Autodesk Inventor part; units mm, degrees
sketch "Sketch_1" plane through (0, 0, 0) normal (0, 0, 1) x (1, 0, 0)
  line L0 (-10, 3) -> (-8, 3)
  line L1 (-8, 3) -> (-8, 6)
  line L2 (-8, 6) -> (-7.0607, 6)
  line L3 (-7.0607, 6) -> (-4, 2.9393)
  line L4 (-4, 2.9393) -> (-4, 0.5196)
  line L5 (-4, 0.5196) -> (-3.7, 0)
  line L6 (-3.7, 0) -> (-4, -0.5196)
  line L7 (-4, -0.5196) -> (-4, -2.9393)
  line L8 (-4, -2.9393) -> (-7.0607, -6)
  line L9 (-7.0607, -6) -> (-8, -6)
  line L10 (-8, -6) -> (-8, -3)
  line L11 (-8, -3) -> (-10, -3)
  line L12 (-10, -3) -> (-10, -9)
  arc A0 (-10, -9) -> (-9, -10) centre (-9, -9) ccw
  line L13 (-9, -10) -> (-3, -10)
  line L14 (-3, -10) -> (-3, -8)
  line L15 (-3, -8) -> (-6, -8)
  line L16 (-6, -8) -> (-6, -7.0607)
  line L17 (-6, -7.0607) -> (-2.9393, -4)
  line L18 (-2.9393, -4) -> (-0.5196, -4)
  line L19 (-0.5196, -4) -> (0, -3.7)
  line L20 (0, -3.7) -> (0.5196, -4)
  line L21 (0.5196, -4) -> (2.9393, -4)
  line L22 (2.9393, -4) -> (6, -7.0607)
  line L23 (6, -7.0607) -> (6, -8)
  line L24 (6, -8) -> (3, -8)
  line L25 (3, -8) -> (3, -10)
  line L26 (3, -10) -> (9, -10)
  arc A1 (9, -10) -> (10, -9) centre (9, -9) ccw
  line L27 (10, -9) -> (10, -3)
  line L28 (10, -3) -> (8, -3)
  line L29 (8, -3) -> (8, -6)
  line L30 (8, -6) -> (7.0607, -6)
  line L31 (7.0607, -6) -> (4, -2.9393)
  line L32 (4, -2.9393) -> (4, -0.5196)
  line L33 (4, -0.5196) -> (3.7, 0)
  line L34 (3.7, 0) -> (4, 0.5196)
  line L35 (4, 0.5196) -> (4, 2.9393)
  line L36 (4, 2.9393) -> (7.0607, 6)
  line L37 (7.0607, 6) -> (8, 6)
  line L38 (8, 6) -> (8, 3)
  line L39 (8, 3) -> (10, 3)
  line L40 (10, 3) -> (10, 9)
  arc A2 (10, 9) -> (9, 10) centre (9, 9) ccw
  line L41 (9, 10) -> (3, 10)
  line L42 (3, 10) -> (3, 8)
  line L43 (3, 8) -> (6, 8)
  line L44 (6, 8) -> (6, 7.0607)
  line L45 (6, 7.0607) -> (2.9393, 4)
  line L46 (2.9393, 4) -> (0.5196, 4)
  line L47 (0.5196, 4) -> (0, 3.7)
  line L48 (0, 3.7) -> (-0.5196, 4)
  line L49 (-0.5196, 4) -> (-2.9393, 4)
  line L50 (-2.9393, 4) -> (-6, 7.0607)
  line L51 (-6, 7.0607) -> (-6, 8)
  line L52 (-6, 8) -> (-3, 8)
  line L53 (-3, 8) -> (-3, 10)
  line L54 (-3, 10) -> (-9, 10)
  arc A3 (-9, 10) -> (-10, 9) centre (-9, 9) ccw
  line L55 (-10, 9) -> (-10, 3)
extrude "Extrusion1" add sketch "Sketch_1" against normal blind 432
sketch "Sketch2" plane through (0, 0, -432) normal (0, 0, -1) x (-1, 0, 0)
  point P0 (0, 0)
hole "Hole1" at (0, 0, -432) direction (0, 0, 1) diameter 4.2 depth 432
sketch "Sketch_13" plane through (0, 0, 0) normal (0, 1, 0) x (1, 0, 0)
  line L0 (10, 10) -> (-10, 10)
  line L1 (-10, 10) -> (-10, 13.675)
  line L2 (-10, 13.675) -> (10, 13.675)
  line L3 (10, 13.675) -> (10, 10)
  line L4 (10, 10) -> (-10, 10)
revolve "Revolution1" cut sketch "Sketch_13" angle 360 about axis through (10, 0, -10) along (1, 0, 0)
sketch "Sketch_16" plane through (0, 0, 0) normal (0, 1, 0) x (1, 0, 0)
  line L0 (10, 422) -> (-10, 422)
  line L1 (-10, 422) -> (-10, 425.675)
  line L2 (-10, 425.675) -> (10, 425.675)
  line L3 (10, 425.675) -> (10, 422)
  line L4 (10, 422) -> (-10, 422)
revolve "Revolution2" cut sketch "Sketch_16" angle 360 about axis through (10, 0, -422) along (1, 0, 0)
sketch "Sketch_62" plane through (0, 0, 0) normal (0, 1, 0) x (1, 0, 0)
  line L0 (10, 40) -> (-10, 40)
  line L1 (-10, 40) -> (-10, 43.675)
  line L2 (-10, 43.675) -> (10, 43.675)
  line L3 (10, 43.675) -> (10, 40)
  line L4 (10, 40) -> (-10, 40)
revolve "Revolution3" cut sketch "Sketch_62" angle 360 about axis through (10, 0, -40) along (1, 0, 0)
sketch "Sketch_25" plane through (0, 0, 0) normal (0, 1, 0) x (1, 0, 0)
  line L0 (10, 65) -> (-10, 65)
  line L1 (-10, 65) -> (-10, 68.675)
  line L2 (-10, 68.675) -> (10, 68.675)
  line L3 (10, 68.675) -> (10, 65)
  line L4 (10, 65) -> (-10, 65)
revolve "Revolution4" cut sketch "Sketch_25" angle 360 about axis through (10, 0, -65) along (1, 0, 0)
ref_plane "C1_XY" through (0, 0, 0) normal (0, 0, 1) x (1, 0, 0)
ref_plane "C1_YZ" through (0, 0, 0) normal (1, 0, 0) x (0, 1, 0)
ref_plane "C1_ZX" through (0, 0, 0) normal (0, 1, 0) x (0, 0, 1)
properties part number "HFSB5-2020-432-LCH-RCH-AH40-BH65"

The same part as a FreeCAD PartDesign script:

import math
import FreeCAD as App
import Part
import Sketcher
from FreeCAD import Vector
Q = App.Units.Quantity

doc = App.newDocument("Part")
body = doc.addObject("PartDesign::Body", "Body")

sketch1 = doc.addObject("Sketcher::SketchObject", "Sketch")
body.addObject(sketch1)
sketch1.AttachmentSupport = (doc.XY_Plane, [""])
sketch1.MapMode = "FlatFace"
sketch1.addGeometry(Part.LineSegment(Vector(-10, 9, 0), Vector(-10, 3, 0)), False)
sketch1.addGeometry(Part.LineSegment(Vector(-10, 3, 0), Vector(-8, 3, 0)), False)
sketch1.addGeometry(Part.LineSegment(Vector(-8, 3, 0), Vector(-8, 6, 0)), False)
sketch1.addGeometry(Part.LineSegment(Vector(-8, 6, 0), Vector(-7.1, 6, 0)), False)
sketch1.addGeometry(Part.LineSegment(Vector(-7.1, 6, 0), Vector(-4, 2.9, 0)), False)
sketch1.addGeometry(Part.LineSegment(Vector(-4, 2.9, 0), Vector(-4, 0.5, 0)), False)
sketch1.addGeometry(Part.LineSegment(Vector(-4, 0.5, 0), Vector(-3.7, 0, 0)), False)
sketch1.addGeometry(Part.LineSegment(Vector(-3.7, 0, 0), Vector(-4, -0.5, 0)), False)
sketch1.addGeometry(Part.LineSegment(Vector(-4, -0.5, 0), Vector(-4, -2.9, 0)), False)
sketch1.addGeometry(Part.LineSegment(Vector(-4, -2.9, 0), Vector(-7.1, -6, 0)), False)
sketch1.addGeometry(Part.LineSegment(Vector(-7.1, -6, 0), Vector(-8, -6, 0)), False)
sketch1.addGeometry(Part.LineSegment(Vector(-8, -6, 0), Vector(-8, -3, 0)), False)
sketch1.addGeometry(Part.LineSegment(Vector(-8, -3, 0), Vector(-10, -3, 0)), False)
sketch1.addGeometry(Part.LineSegment(Vector(-10, -3, 0), Vector(-10, -9, 0)), False)
sketch1.addGeometry(Part.ArcOfCircle(Part.Circle(Vector(-9, -9, 0), Vector(0, 0, 1), 1), math.radians(180), math.radians(270)), False)
sketch1.addGeometry(Part.LineSegment(Vector(-9, -10, 0), Vector(-3, -10, 0)), False)
sketch1.addGeometry(Part.LineSegment(Vector(-3, -10, 0), Vector(-3, -8, 0)), False)
sketch1.addGeometry(Part.LineSegment(Vector(-3, -8, 0), Vector(-6, -8, 0)), False)
sketch1.addGeometry(Part.LineSegment(Vector(-6, -8, 0), Vector(-6, -7.1, 0)), False)
sketch1.addGeometry(Part.LineSegment(Vector(-6, -7.1, 0), Vector(-2.9, -4, 0)), False)
sketch1.addGeometry(Part.LineSegment(Vector(-2.9, -4, 0), Vector(-0.5, -4, 0)), False)
sketch1.addGeometry(Part.LineSegment(Vector(-0.5, -4, 0), Vector(0, -3.7, 0)), False)
sketch1.addGeometry(Part.LineSegment(Vector(0, -3.7, 0), Vector(0.5, -4, 0)), False)
sketch1.addGeometry(Part.LineSegment(Vector(0.5, -4, 0), Vector(2.9, -4, 0)), False)
sketch1.addGeometry(Part.LineSegment(Vector(2.9, -4, 0), Vector(6, -7.1, 0)), False)
sketch1.addGeometry(Part.LineSegment(Vector(6, -7.1, 0), Vector(6, -8, 0)), False)
sketch1.addGeometry(Part.LineSegment(Vector(6, -8, 0), Vector(3, -8, 0)), False)
sketch1.addGeometry(Part.LineSegment(Vector(3, -8, 0), Vector(3, -10, 0)), False)
sketch1.addGeometry(Part.LineSegment(Vector(3, -10, 0), Vector(9, -10, 0)), False)
sketch1.addGeometry(Part.ArcOfCircle(Part.Circle(Vector(9, -9, 0), Vector(0, 0, 1), 1), math.radians(-90), math.radians(0)), False)
sketch1.addGeometry(Part.LineSegment(Vector(10, -9, 0), Vector(10, -3, 0)), False)
sketch1.addGeometry(Part.LineSegment(Vector(10, -3, 0), Vector(8, -3, 0)), False)
sketch1.addGeometry(Part.LineSegment(Vector(8, -3, 0), Vector(8, -6, 0)), False)
sketch1.addGeometry(Part.LineSegment(Vector(8, -6, 0), Vector(7.1, -6, 0)), False)
sketch1.addGeometry(Part.LineSegment(Vector(7.1, -6, 0), Vector(4, -2.9, 0)), False)
sketch1.addGeometry(Part.LineSegment(Vector(4, -2.9, 0), Vector(4, -0.5, 0)), False)
sketch1.addGeometry(Part.LineSegment(Vector(4, -0.5, 0), Vector(3.7, 0, 0)), False)
sketch1.addGeometry(Part.LineSegment(Vector(3.7, 0, 0), Vector(4, 0.5, 0)), False)
sketch1.addGeometry(Part.LineSegment(Vector(4, 0.5, 0), Vector(4, 2.9, 0)), False)
sketch1.addGeometry(Part.LineSegment(Vector(4, 2.9, 0), Vector(7.1, 6, 0)), False)
sketch1.addGeometry(Part.LineSegment(Vector(7.1, 6, 0), Vector(8, 6, 0)), False)
sketch1.addGeometry(Part.LineSegment(Vector(8, 6, 0), Vector(8, 3, 0)), False)
sketch1.addGeometry(Part.LineSegment(Vector(8, 3, 0), Vector(10, 3, 0)), False)
sketch1.addGeometry(Part.LineSegment(Vector(10, 3, 0), Vector(10, 9, 0)), False)
sketch1.addGeometry(Part.ArcOfCircle(Part.Circle(Vector(9, 9, 0), Vector(0, 0, 1), 1), math.radians(0), math.radians(90)), False)
sketch1.addGeometry(Part.LineSegment(Vector(9, 10, 0), Vector(3, 10, 0)), False)
sketch1.addGeometry(Part.LineSegment(Vector(3, 10, 0), Vector(3, 8, 0)), False)
sketch1.addGeometry(Part.LineSegment(Vector(3, 8, 0), Vector(6, 8, 0)), False)
sketch1.addGeometry(Part.LineSegment(Vector(6, 8, 0), Vector(6, 7.1, 0)), False)
sketch1.addGeometry(Part.LineSegment(Vector(6, 7.1, 0), Vector(2.9, 4, 0)), False)
sketch1.addGeometry(Part.LineSegment(Vector(2.9, 4, 0), Vector(0.5, 4, 0)), False)
sketch1.addGeometry(Part.LineSegment(Vector(0.5, 4, 0), Vector(0, 3.7, 0)), False)
sketch1.addGeometry(Part.LineSegment(Vector(0, 3.7, 0), Vector(-0.5, 4, 0)), False)
sketch1.addGeometry(Part.LineSegment(Vector(-0.5, 4, 0), Vector(-2.9, 4, 0)), False)
sketch1.addGeometry(Part.LineSegment(Vector(-2.9, 4, 0), Vector(-6, 7.1, 0)), False)
sketch1.addGeometry(Part.LineSegment(Vector(-6, 7.1, 0), Vector(-6, 8, 0)), False)
sketch1.addGeometry(Part.LineSegment(Vector(-6, 8, 0), Vector(-3, 8, 0)), False)
sketch1.addGeometry(Part.LineSegment(Vector(-3, 8, 0), Vector(-3, 10, 0)), False)
sketch1.addGeometry(Part.LineSegment(Vector(-3, 10, 0), Vector(-9, 10, 0)), False)
sketch1.addGeometry(Part.ArcOfCircle(Part.Circle(Vector(-9, 9, 0), Vector(0, 0, 1), 1), math.radians(90), math.radians(180)), False)
sketch1.addConstraint(Sketcher.Constraint("Coincident", 0, 2, 1, 1))
sketch1.addConstraint(Sketcher.Constraint("Coincident", 1, 2, 2, 1))
sketch1.addConstraint(Sketcher.Constraint("Coincident", 2, 2, 3, 1))
sketch1.addConstraint(Sketcher.Constraint("Coincident", 3, 2, 4, 1))
sketch1.addConstraint(Sketcher.Constraint("Coincident", 4, 2, 5, 1))
sketch1.addConstraint(Sketcher.Constraint("Coincident", 5, 2, 6, 1))
sketch1.addConstraint(Sketcher.Constraint("Coincident", 6, 2, 7, 1))
sketch1.addConstraint(Sketcher.Constraint("Coincident", 7, 2, 8, 1))
sketch1.addConstraint(Sketcher.Constraint("Coincident", 8, 2, 9, 1))
sketch1.addConstraint(Sketcher.Constraint("Coincident", 9, 2, 10, 1))
sketch1.addConstraint(Sketcher.Constraint("Coincident", 10, 2, 11, 1))
sketch1.addConstraint(Sketcher.Constraint("Coincident", 11, 2, 12, 1))
sketch1.addConstraint(Sketcher.Constraint("Coincident", 12, 2, 13, 1))
sketch1.addConstraint(Sketcher.Constraint("Tangent", 13, 2, 14, 1))
sketch1.addConstraint(Sketcher.Constraint("Tangent", 14, 2, 15, 1))
sketch1.addConstraint(Sketcher.Constraint("Coincident", 15, 2, 16, 1))
sketch1.addConstraint(Sketcher.Constraint("Coincident", 16, 2, 17, 1))
sketch1.addConstraint(Sketcher.Constraint("Coincident", 17, 2, 18, 1))
sketch1.addConstraint(Sketcher.Constraint("Coincident", 18, 2, 19, 1))
sketch1.addConstraint(Sketcher.Constraint("Coincident", 19, 2, 20, 1))
sketch1.addConstraint(Sketcher.Constraint("Coincident", 20, 2, 21, 1))
sketch1.addConstraint(Sketcher.Constraint("Coincident", 21, 2, 22, 1))
sketch1.addConstraint(Sketcher.Constraint("Coincident", 22, 2, 23, 1))
sketch1.addConstraint(Sketcher.Constraint("Coincident", 23, 2, 24, 1))
sketch1.addConstraint(Sketcher.Constraint("Coincident", 24, 2, 25, 1))
sketch1.addConstraint(Sketcher.Constraint("Coincident", 25, 2, 26, 1))
sketch1.addConstraint(Sketcher.Constraint("Coincident", 26, 2, 27, 1))
sketch1.addConstraint(Sketcher.Constraint("Coincident", 27, 2, 28, 1))
sketch1.addConstraint(Sketcher.Constraint("Tangent", 28, 2, 29, 1))
sketch1.addConstraint(Sketcher.Constraint("Tangent", 29, 2, 30, 1))
sketch1.addConstraint(Sketcher.Constraint("Coincident", 30, 2, 31, 1))
sketch1.addConstraint(Sketcher.Constraint("Coincident", 31, 2, 32, 1))
sketch1.addConstraint(Sketcher.Constraint("Coincident", 32, 2, 33, 1))
sketch1.addConstraint(Sketcher.Constraint("Coincident", 33, 2, 34, 1))
sketch1.addConstraint(Sketcher.Constraint("Coincident", 34, 2, 35, 1))
sketch1.addConstraint(Sketcher.Constraint("Coincident", 35, 2, 36, 1))
sketch1.addConstraint(Sketcher.Constraint("Coincident", 36, 2, 37, 1))
sketch1.addConstraint(Sketcher.Constraint("Coincident", 37, 2, 38, 1))
sketch1.addConstraint(Sketcher.Constraint("Coincident", 38, 2, 39, 1))
sketch1.addConstraint(Sketcher.Constraint("Coincident", 39, 2, 40, 1))
sketch1.addConstraint(Sketcher.Constraint("Coincident", 40, 2, 41, 1))
sketch1.addConstraint(Sketcher.Constraint("Coincident", 41, 2, 42, 1))
sketch1.addConstraint(Sketcher.Constraint("Coincident", 42, 2, 43, 1))
sketch1.addConstraint(Sketcher.Constraint("Tangent", 43, 2, 44, 1))
sketch1.addConstraint(Sketcher.Constraint("Tangent", 44, 2, 45, 1))
sketch1.addConstraint(Sketcher.Constraint("Coincident", 45, 2, 46, 1))
sketch1.addConstraint(Sketcher.Constraint("Coincident", 46, 2, 47, 1))
sketch1.addConstraint(Sketcher.Constraint("Coincident", 47, 2, 48, 1))
sketch1.addConstraint(Sketcher.Constraint("Coincident", 48, 2, 49, 1))
sketch1.addConstraint(Sketcher.Constraint("Coincident", 49, 2, 50, 1))
sketch1.addConstraint(Sketcher.Constraint("Coincident", 50, 2, 51, 1))
sketch1.addConstraint(Sketcher.Constraint("Coincident", 51, 2, 52, 1))
sketch1.addConstraint(Sketcher.Constraint("Coincident", 52, 2, 53, 1))
sketch1.addConstraint(Sketcher.Constraint("Coincident", 53, 2, 54, 1))
sketch1.addConstraint(Sketcher.Constraint("Coincident", 54, 2, 55, 1))
sketch1.addConstraint(Sketcher.Constraint("Coincident", 55, 2, 56, 1))
sketch1.addConstraint(Sketcher.Constraint("Coincident", 56, 2, 57, 1))
sketch1.addConstraint(Sketcher.Constraint("Coincident", 57, 2, 58, 1))
sketch1.addConstraint(Sketcher.Constraint("Tangent", 58, 2, 59, 1))
sketch1.addConstraint(Sketcher.Constraint("Tangent", 59, 2, 0, 1))
sketch1.addConstraint(Sketcher.Constraint("Vertical", 0))
sketch1.addConstraint(Sketcher.Constraint("Horizontal", 1))
sketch1.addConstraint(Sketcher.Constraint("Vertical", 2))
sketch1.addConstraint(Sketcher.Constraint("Horizontal", 3))
sketch1.addConstraint(Sketcher.Constraint("Vertical", 5))
sketch1.addConstraint(Sketcher.Constraint("Vertical", 8))
sketch1.addConstraint(Sketcher.Constraint("Horizontal", 10))
sketch1.addConstraint(Sketcher.Constraint("Vertical", 11))
sketch1.addConstraint(Sketcher.Constraint("Horizontal", 12))
sketch1.addConstraint(Sketcher.Constraint("Vertical", 13))
sketch1.addConstraint(Sketcher.Constraint("Horizontal", 15))
sketch1.addConstraint(Sketcher.Constraint("Vertical", 16))
sketch1.addConstraint(Sketcher.Constraint("Horizontal", 17))
sketch1.addConstraint(Sketcher.Constraint("Vertical", 18))
sketch1.addConstraint(Sketcher.Constraint("Horizontal", 20))
sketch1.addConstraint(Sketcher.Constraint("Horizontal", 23))
sketch1.addConstraint(Sketcher.Constraint("Vertical", 25))
sketch1.addConstraint(Sketcher.Constraint("Horizontal", 26))
sketch1.addConstraint(Sketcher.Constraint("Vertical", 27))
sketch1.addConstraint(Sketcher.Constraint("Horizontal", 28))
sketch1.addConstraint(Sketcher.Constraint("Vertical", 30))
sketch1.addConstraint(Sketcher.Constraint("Horizontal", 31))
sketch1.addConstraint(Sketcher.Constraint("Vertical", 32))
sketch1.addConstraint(Sketcher.Constraint("Horizontal", 33))
sketch1.addConstraint(Sketcher.Constraint("Vertical", 35))
sketch1.addConstraint(Sketcher.Constraint("Vertical", 38))
sketch1.addConstraint(Sketcher.Constraint("Horizontal", 40))
sketch1.addConstraint(Sketcher.Constraint("Vertical", 41))
sketch1.addConstraint(Sketcher.Constraint("Horizontal", 42))
sketch1.addConstraint(Sketcher.Constraint("Vertical", 43))
sketch1.addConstraint(Sketcher.Constraint("Horizontal", 45))
sketch1.addConstraint(Sketcher.Constraint("Vertical", 46))
sketch1.addConstraint(Sketcher.Constraint("Horizontal", 47))
sketch1.addConstraint(Sketcher.Constraint("Vertical", 48))
sketch1.addConstraint(Sketcher.Constraint("Horizontal", 50))
sketch1.addConstraint(Sketcher.Constraint("Horizontal", 53))
sketch1.addConstraint(Sketcher.Constraint("Vertical", 55))
sketch1.addConstraint(Sketcher.Constraint("Horizontal", 56))
sketch1.addConstraint(Sketcher.Constraint("Vertical", 57))
sketch1.addConstraint(Sketcher.Constraint("Horizontal", 58))
sketch1.addConstraint(Sketcher.Constraint("Equal", 14, 29))
sketch1.addConstraint(Sketcher.Constraint("Equal", 29, 44))
sketch1.addConstraint(Sketcher.Constraint("Equal", 44, 59))
sketch1.addConstraint(Sketcher.Constraint("Symmetric", 14, 3, 44, 3, -1, 1))
sketch1.addConstraint(Sketcher.Constraint("Symmetric", 29, 3, 59, 3, -1, 1))
sketch1.addConstraint(Sketcher.Constraint("Symmetric", 1, 2, 31, 2, -1, 1))
sketch1.addConstraint(Sketcher.Constraint("Symmetric", 3, 2, 33, 2, -1, 1))
sketch1.addConstraint(Sketcher.Constraint("Symmetric", 4, 2, 34, 2, -1, 1))
sketch1.addConstraint(Sketcher.Constraint("Symmetric", 6, 2, 36, 2, -1, 1))
sketch1.addConstraint(Sketcher.Constraint("Symmetric", 7, 2, 37, 2, -1, 1))
sketch1.addConstraint(Sketcher.Constraint("Symmetric", 9, 2, 39, 2, -1, 1))
sketch1.addConstraint(Sketcher.Constraint("Symmetric", 11, 2, 41, 2, -1, 1))
sketch1.addConstraint(Sketcher.Constraint("Symmetric", 16, 2, 46, 2, -1, 1))
sketch1.addConstraint(Sketcher.Constraint("Symmetric", 18, 2, 48, 2, -1, 1))
sketch1.addConstraint(Sketcher.Constraint("Symmetric", 19, 2, 49, 2, -1, 1))
sketch1.addConstraint(Sketcher.Constraint("Symmetric", 21, 2, 51, 2, -1, 1))
sketch1.addConstraint(Sketcher.Constraint("Symmetric", 22, 2, 52, 2, -1, 1))
sketch1.addConstraint(Sketcher.Constraint("Symmetric", 24, 2, 54, 2, -1, 1))
sketch1.addConstraint(Sketcher.Constraint("Symmetric", 26, 2, 56, 2, -1, 1))
sketch1.addConstraint(Sketcher.Constraint("Symmetric", 14, 3, 29, 3, -2))
sketch1.addConstraint(Sketcher.Constraint("Symmetric", 20, 2, 22, 2, -2))
sketch1.addConstraint(Sketcher.Constraint("Symmetric", 18, 2, 24, 2, -2))
sketch1.addConstraint(Sketcher.Constraint("Symmetric", 16, 2, 26, 2, -2))
sketch1.addConstraint(Sketcher.Constraint("Symmetric", 11, 2, 31, 2, -2))
sketch1.addConstraint(Sketcher.Constraint("Symmetric", 9, 2, 33, 2, -2))
sketch1.addConstraint(Sketcher.Constraint("Symmetric", 8, 2, 34, 2, -2))
sketch1.addConstraint(Sketcher.Constraint("PointOnObject", 6, 2, -1))
sketch1.addConstraint(Sketcher.Constraint("PointOnObject", 21, 2, -2))
sketch1.addConstraint(Sketcher.Constraint("Perpendicular", 4, 9))
sketch1.addConstraint(Sketcher.Constraint("Parallel", 9, 19))
sketch1.addConstraint(Sketcher.Constraint("Perpendicular", 6, 21))
sketch1.addConstraint(Sketcher.Constraint("Perpendicular", 7, 22))
sketch1.addConstraint(Sketcher.Constraint("Perpendicular", 19, 24))
sketch1.addConstraint(Sketcher.Constraint("Perpendicular", 21, 36))
sketch1.addConstraint(Sketcher.Constraint("Perpendicular", 34, 39))
sketch1.addConstraint(Sketcher.Constraint("Perpendicular", 36, 51))
sketch1.addConstraint(Sketcher.Constraint("Perpendicular", 49, 54))
sketch1.addConstraint(Sketcher.Constraint("Equal", 58, 0))
sketch1.addConstraint(Sketcher.Constraint("Equal", 56, 2))
sketch1.addConstraint(Sketcher.Constraint("Equal", 53, 5))
sketch1.addConstraint(Sketcher.Constraint("Equal", 42, 16))
sketch1.addConstraint(Sketcher.Constraint("Equal", 40, 18))
sketch1.addConstraint(Sketcher.Constraint("Equal", 9, 19))
sketch1.addConstraint(Sketcher.Constraint("Equal", 7, 21))
sketch1.addConstraint(Sketcher.Constraint("Radius", 14, 1.0))
sketch1.addConstraint(Sketcher.Constraint("DistanceX", 1, 1, 1, 2, 2.0))
sketch1.addConstraint(Sketcher.Constraint("DistanceX", 15, 1, 15, 2, 6.0))
sketch1.addConstraint(Sketcher.Constraint("DistanceX", 17, 2, 17, 1, 3.0))
sketch1.addConstraint(Sketcher.Constraint("Angle", 6, Q("-59.9993 deg")))
sketch1.addConstraint(Sketcher.Constraint("DistanceX", 14, 3, -1, 1, 9.0))
sketch1.addConstraint(Sketcher.Constraint("DistanceX", 4, 2, -1, 1, 4.0))
sketch1.addConstraint(Sketcher.Constraint("Distance", 6, 0.6))
sketch1.addConstraint(Sketcher.Constraint("DistanceX", 3, 1, 3, 2, 0.9393))
pad1 = doc.addObject("PartDesign::Pad", "Pad")
body.addObject(pad1)
pad1.Profile = sketch1
pad1.Length = 432
pad1.Reversed = True

sketch2 = doc.addObject("Sketcher::SketchObject", "Sketch001")
body.addObject(sketch2)
sketch2.AttachmentSupport = (doc.XY_Plane, [""])
sketch2.MapMode = "FlatFace"
sketch2.AttachmentOffset = App.Placement(Vector(0, 0, -432), App.Rotation())
sketch2.addGeometry(Part.Circle(Vector(0, 0, 0), Vector(0, 0, 1), 2.1), False)
sketch2.addConstraint(Sketcher.Constraint("Coincident", 0, 3, -1, 1))
sketch2.addConstraint(Sketcher.Constraint("Diameter", 0, 4.2))
doc.recompute()
hole = doc.addObject("PartDesign::Hole", "Hole")
body.addObject(hole)
hole.Profile = sketch2
hole.ThreadType = "None"
hole.Diameter = 4.2
hole.DepthType = "Dimension"
hole.Depth = 432
hole.DrillPoint = "Flat"
hole.Reversed = True

sketch3 = doc.addObject("Sketcher::SketchObject", "Sketch002")
body.addObject(sketch3)
sketch3.AttachmentSupport = (doc.XZ_Plane, [""])
sketch3.MapMode = "FlatFace"
sketch3.addGeometry(Part.LineSegment(Vector(-10, -10, 0), Vector(10, -10, 0)), False)
sketch3.addGeometry(Part.LineSegment(Vector(10, -10, 0), Vector(10, -13.7, 0)), False)
sketch3.addGeometry(Part.LineSegment(Vector(10, -13.7, 0), Vector(-10, -13.7, 0)), False)
sketch3.addGeometry(Part.LineSegment(Vector(-10, -13.7, 0), Vector(-10, -10, 0)), False)
sketch3.addGeometry(Part.LineSegment(Vector(-10, -10, 0), Vector(10, -10, 0)), True)
sketch3.addConstraint(Sketcher.Constraint("Coincident", 0, 2, 1, 1))
sketch3.addConstraint(Sketcher.Constraint("Coincident", 1, 2, 2, 1))
sketch3.addConstraint(Sketcher.Constraint("Coincident", 2, 2, 3, 1))
sketch3.addConstraint(Sketcher.Constraint("Coincident", 3, 2, 0, 1))
sketch3.addConstraint(Sketcher.Constraint("Horizontal", 0))
sketch3.addConstraint(Sketcher.Constraint("Vertical", 1))
sketch3.addConstraint(Sketcher.Constraint("Horizontal", 2))
sketch3.addConstraint(Sketcher.Constraint("Vertical", 3))
sketch3.addConstraint(Sketcher.Constraint("Horizontal", 4))
sketch3.addConstraint(Sketcher.Constraint("Coincident", 4, 1, 3, 2))
sketch3.addConstraint(Sketcher.Constraint("Vertical", 1, 2, 4, 2))
sketch3.addConstraint(Sketcher.Constraint("DistanceX", 0, 1, 0, 2, 20.0))
sketch3.addConstraint(Sketcher.Constraint("DistanceX", -1, 1, 0, 2, 10.0))
sketch3.addConstraint(Sketcher.Constraint("DistanceY", 0, 2, -1, 1, 10.0))
sketch3.addConstraint(Sketcher.Constraint("DistanceY", 1, 2, 1, 1, 3.675))
groove = doc.addObject("PartDesign::Groove", "Groove")
body.addObject(groove)
groove.Profile = sketch3
groove.ReferenceAxis = (sketch3, ["Axis0"])
groove.Angle = 360

sketch4 = doc.addObject("Sketcher::SketchObject", "Sketch003")
body.addObject(sketch4)
sketch4.AttachmentSupport = (doc.XZ_Plane, [""])
sketch4.MapMode = "FlatFace"
sketch4.addGeometry(Part.LineSegment(Vector(-10, -422, 0), Vector(10, -422, 0)), False)
sketch4.addGeometry(Part.LineSegment(Vector(10, -422, 0), Vector(10, -425.7, 0)), False)
sketch4.addGeometry(Part.LineSegment(Vector(10, -425.7, 0), Vector(-10, -425.7, 0)), False)
sketch4.addGeometry(Part.LineSegment(Vector(-10, -425.7, 0), Vector(-10, -422, 0)), False)
sketch4.addGeometry(Part.LineSegment(Vector(-10, -422, 0), Vector(10, -422, 0)), True)
sketch4.addConstraint(Sketcher.Constraint("Coincident", 0, 2, 1, 1))
sketch4.addConstraint(Sketcher.Constraint("Coincident", 1, 2, 2, 1))
sketch4.addConstraint(Sketcher.Constraint("Coincident", 2, 2, 3, 1))
sketch4.addConstraint(Sketcher.Constraint("Coincident", 3, 2, 0, 1))
sketch4.addConstraint(Sketcher.Constraint("Horizontal", 0))
sketch4.addConstraint(Sketcher.Constraint("Vertical", 1))
sketch4.addConstraint(Sketcher.Constraint("Horizontal", 2))
sketch4.addConstraint(Sketcher.Constraint("Vertical", 3))
sketch4.addConstraint(Sketcher.Constraint("Horizontal", 4))
sketch4.addConstraint(Sketcher.Constraint("Coincident", 4, 1, 3, 2))
sketch4.addConstraint(Sketcher.Constraint("Vertical", 1, 2, 4, 2))
sketch4.addConstraint(Sketcher.Constraint("DistanceX", 0, 1, 0, 2, 20.0))
sketch4.addConstraint(Sketcher.Constraint("DistanceX", -1, 1, 0, 2, 10.0))
sketch4.addConstraint(Sketcher.Constraint("DistanceY", 0, 2, -1, 1, 422.0))
sketch4.addConstraint(Sketcher.Constraint("DistanceY", 1, 2, 1, 1, 3.675))
groove2 = doc.addObject("PartDesign::Groove", "Groove001")
body.addObject(groove2)
groove2.Profile = sketch4
groove2.ReferenceAxis = (sketch4, ["Axis0"])
groove2.Angle = 360

sketch5 = doc.addObject("Sketcher::SketchObject", "Sketch004")
body.addObject(sketch5)
sketch5.AttachmentSupport = (doc.XZ_Plane, [""])
sketch5.MapMode = "FlatFace"
sketch5.addGeometry(Part.LineSegment(Vector(-10, -40, 0), Vector(10, -40, 0)), False)
sketch5.addGeometry(Part.LineSegment(Vector(10, -40, 0), Vector(10, -43.7, 0)), False)
sketch5.addGeometry(Part.LineSegment(Vector(10, -43.7, 0), Vector(-10, -43.7, 0)), False)
sketch5.addGeometry(Part.LineSegment(Vector(-10, -43.7, 0), Vector(-10, -40, 0)), False)
sketch5.addGeometry(Part.LineSegment(Vector(-10, -40, 0), Vector(10, -40, 0)), True)
sketch5.addConstraint(Sketcher.Constraint("Coincident", 0, 2, 1, 1))
sketch5.addConstraint(Sketcher.Constraint("Coincident", 1, 2, 2, 1))
sketch5.addConstraint(Sketcher.Constraint("Coincident", 2, 2, 3, 1))
sketch5.addConstraint(Sketcher.Constraint("Coincident", 3, 2, 0, 1))
sketch5.addConstraint(Sketcher.Constraint("Horizontal", 0))
sketch5.addConstraint(Sketcher.Constraint("Vertical", 1))
sketch5.addConstraint(Sketcher.Constraint("Horizontal", 2))
sketch5.addConstraint(Sketcher.Constraint("Vertical", 3))
sketch5.addConstraint(Sketcher.Constraint("Horizontal", 4))
sketch5.addConstraint(Sketcher.Constraint("Coincident", 4, 1, 3, 2))
sketch5.addConstraint(Sketcher.Constraint("Vertical", 1, 2, 4, 2))
sketch5.addConstraint(Sketcher.Constraint("DistanceX", 0, 1, 0, 2, 20.0))
sketch5.addConstraint(Sketcher.Constraint("DistanceX", -1, 1, 0, 2, 10.0))
sketch5.addConstraint(Sketcher.Constraint("DistanceY", 0, 2, -1, 1, 40.0))
sketch5.addConstraint(Sketcher.Constraint("DistanceY", 1, 2, 1, 1, 3.675))
groove3 = doc.addObject("PartDesign::Groove", "Groove002")
body.addObject(groove3)
groove3.Profile = sketch5
groove3.ReferenceAxis = (sketch5, ["Axis0"])
groove3.Angle = 360

sketch6 = doc.addObject("Sketcher::SketchObject", "Sketch005")
body.addObject(sketch6)
sketch6.AttachmentSupport = (doc.XZ_Plane, [""])
sketch6.MapMode = "FlatFace"
sketch6.addGeometry(Part.LineSegment(Vector(-10, -65, 0), Vector(10, -65, 0)), False)
sketch6.addGeometry(Part.LineSegment(Vector(10, -65, 0), Vector(10, -68.7, 0)), False)
sketch6.addGeometry(Part.LineSegment(Vector(10, -68.7, 0), Vector(-10, -68.7, 0)), False)
sketch6.addGeometry(Part.LineSegment(Vector(-10, -68.7, 0), Vector(-10, -65, 0)), False)
sketch6.addGeometry(Part.LineSegment(Vector(-10, -65, 0), Vector(10, -65, 0)), True)
sketch6.addConstraint(Sketcher.Constraint("Coincident", 0, 2, 1, 1))
sketch6.addConstraint(Sketcher.Constraint("Coincident", 1, 2, 2, 1))
sketch6.addConstraint(Sketcher.Constraint("Coincident", 2, 2, 3, 1))
sketch6.addConstraint(Sketcher.Constraint("Coincident", 3, 2, 0, 1))
sketch6.addConstraint(Sketcher.Constraint("Horizontal", 0))
sketch6.addConstraint(Sketcher.Constraint("Vertical", 1))
sketch6.addConstraint(Sketcher.Constraint("Horizontal", 2))
sketch6.addConstraint(Sketcher.Constraint("Vertical", 3))
sketch6.addConstraint(Sketcher.Constraint("Horizontal", 4))
sketch6.addConstraint(Sketcher.Constraint("Coincident", 4, 1, 3, 2))
sketch6.addConstraint(Sketcher.Constraint("Vertical", 1, 2, 4, 2))
sketch6.addConstraint(Sketcher.Constraint("DistanceX", 0, 1, 0, 2, 20.0))
sketch6.addConstraint(Sketcher.Constraint("DistanceX", -1, 1, 0, 2, 10.0))
sketch6.addConstraint(Sketcher.Constraint("DistanceY", 0, 2, -1, 1, 65.0))
sketch6.addConstraint(Sketcher.Constraint("DistanceY", 1, 2, 1, 1, 3.675))
groove4 = doc.addObject("PartDesign::Groove", "Groove003")
body.addObject(groove4)
groove4.Profile = sketch6
groove4.ReferenceAxis = (sketch6, ["Axis0"])
groove4.Angle = 360

doc.recompute()
